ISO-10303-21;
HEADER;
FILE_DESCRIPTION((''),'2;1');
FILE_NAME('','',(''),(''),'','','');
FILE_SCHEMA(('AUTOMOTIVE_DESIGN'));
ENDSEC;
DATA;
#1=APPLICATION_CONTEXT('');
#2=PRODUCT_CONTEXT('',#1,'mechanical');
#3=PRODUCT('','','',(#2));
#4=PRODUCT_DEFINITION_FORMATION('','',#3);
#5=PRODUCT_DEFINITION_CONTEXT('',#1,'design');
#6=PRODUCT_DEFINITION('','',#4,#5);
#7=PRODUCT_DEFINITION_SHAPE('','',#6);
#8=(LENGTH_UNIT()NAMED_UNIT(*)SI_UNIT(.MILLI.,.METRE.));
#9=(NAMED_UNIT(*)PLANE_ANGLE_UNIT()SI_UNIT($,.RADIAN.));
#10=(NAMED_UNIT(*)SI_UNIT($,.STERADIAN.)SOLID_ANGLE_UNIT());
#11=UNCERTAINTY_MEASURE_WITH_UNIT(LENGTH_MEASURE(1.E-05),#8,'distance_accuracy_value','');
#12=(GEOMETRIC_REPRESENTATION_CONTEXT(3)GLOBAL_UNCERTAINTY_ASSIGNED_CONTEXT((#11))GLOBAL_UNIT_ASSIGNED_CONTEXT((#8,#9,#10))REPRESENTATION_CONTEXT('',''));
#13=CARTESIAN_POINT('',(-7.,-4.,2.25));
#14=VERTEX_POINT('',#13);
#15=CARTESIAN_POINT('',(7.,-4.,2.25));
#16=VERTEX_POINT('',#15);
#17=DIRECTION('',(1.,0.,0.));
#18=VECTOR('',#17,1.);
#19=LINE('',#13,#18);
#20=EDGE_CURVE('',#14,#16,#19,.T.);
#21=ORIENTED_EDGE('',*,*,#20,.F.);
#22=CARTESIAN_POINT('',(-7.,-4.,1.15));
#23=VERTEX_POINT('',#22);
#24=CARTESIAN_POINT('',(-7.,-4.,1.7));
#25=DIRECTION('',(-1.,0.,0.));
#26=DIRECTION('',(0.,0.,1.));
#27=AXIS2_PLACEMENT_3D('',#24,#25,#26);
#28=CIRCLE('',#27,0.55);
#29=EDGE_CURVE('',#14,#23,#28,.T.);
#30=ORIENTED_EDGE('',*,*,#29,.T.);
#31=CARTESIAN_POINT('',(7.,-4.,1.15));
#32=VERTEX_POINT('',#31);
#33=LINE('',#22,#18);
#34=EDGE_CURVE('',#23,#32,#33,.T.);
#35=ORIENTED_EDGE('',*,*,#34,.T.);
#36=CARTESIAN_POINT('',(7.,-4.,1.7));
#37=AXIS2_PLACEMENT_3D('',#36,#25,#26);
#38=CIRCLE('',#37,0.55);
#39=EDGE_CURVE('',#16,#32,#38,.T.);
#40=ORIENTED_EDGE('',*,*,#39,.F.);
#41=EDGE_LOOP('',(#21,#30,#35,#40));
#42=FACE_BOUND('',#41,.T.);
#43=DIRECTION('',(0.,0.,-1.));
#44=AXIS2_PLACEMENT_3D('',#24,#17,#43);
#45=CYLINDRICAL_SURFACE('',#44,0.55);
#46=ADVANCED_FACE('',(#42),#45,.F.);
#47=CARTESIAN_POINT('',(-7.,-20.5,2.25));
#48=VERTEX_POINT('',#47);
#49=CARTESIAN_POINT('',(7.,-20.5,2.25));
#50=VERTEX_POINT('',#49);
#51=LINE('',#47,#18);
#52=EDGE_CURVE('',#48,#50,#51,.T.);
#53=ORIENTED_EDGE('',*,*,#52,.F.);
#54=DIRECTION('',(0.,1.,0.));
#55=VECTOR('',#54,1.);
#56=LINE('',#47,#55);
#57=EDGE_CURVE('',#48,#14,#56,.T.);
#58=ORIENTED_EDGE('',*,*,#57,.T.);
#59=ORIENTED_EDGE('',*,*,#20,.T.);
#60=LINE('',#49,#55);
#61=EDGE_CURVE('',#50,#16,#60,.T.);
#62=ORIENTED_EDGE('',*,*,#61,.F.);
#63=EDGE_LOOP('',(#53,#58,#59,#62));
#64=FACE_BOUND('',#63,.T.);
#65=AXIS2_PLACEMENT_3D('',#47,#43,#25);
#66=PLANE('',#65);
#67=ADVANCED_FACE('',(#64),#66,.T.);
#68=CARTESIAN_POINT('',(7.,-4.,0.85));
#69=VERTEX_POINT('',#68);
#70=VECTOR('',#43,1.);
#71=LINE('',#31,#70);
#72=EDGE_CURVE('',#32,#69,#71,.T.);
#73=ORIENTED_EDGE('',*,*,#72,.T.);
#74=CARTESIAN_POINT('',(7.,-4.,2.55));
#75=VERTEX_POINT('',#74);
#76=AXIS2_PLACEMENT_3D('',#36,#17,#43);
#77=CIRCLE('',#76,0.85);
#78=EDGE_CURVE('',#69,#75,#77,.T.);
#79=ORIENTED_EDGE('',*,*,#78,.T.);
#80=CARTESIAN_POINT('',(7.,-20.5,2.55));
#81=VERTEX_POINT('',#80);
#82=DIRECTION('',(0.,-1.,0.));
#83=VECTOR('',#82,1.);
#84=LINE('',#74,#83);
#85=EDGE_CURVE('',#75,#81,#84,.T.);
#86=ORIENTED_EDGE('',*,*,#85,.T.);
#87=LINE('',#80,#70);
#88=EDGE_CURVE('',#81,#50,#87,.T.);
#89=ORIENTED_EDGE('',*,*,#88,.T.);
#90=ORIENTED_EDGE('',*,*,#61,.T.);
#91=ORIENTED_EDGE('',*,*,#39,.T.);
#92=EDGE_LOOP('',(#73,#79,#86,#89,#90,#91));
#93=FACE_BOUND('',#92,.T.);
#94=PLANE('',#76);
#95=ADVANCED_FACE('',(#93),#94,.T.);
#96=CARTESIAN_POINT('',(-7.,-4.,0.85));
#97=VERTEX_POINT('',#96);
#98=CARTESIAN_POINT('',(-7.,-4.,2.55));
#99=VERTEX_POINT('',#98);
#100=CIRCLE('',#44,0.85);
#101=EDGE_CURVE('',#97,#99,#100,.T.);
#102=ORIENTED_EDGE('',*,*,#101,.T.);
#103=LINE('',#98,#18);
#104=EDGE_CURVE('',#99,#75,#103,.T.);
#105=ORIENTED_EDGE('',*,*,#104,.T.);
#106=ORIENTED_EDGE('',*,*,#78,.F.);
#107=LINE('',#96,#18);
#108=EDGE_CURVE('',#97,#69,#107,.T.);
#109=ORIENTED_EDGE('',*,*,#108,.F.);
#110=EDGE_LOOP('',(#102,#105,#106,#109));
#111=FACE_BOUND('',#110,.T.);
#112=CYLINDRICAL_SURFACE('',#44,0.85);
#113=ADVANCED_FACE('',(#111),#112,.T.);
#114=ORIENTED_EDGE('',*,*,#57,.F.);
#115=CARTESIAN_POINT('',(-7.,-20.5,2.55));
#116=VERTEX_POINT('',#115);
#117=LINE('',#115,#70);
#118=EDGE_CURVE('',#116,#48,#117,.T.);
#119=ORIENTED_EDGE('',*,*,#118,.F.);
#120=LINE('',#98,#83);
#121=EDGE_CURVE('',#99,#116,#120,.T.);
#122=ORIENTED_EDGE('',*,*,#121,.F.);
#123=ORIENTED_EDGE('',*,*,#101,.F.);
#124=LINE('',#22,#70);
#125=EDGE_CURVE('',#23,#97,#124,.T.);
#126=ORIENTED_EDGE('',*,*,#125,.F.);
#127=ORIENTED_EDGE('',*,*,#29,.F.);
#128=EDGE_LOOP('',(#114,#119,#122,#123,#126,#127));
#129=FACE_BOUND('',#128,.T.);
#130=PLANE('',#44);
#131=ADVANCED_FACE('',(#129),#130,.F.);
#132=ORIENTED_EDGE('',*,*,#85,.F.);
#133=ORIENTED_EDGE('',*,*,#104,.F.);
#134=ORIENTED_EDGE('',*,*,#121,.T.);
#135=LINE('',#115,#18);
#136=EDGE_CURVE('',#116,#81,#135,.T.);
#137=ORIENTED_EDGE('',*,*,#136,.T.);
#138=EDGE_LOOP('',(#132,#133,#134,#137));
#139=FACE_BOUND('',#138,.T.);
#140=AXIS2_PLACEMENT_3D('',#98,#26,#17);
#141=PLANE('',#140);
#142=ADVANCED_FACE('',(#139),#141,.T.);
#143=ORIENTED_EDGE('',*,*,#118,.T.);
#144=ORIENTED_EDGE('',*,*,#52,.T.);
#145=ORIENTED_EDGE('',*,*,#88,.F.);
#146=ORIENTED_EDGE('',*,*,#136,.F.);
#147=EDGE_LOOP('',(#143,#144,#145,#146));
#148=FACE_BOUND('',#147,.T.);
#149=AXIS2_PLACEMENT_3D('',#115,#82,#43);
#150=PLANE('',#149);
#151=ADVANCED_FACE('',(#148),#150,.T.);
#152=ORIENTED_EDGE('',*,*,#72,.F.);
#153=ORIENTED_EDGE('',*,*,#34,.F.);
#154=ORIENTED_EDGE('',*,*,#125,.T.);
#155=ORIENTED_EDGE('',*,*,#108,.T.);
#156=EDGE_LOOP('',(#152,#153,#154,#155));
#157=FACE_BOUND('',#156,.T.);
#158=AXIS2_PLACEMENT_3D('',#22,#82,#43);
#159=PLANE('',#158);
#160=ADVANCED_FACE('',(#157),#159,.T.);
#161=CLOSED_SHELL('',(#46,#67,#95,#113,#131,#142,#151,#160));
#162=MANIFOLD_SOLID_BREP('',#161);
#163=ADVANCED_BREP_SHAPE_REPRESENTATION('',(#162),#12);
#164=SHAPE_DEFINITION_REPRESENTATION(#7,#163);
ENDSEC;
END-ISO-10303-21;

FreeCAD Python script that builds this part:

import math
import FreeCAD as App
import Part
import Sketcher

doc = App.newDocument("Part")
body = doc.addObject("PartDesign::Body", "Body")

# Sketch on YZ plane
sketch1 = doc.addObject("Sketcher::SketchObject", "Sketch")
body.addObject(sketch1)
sketch1.AttachmentSupport = (doc.YZ_Plane, [""])
sketch1.MapMode = "FlatFace"
sketch1.addGeometry([
    Part.LineSegment(App.Vector(-4, 2.55, 0), App.Vector(-20.5, 2.55, 0)),  # 0
    Part.LineSegment(App.Vector(-20.5, 2.55, 0), App.Vector(-20.5, 2.25, 0)),  # 1
    Part.LineSegment(App.Vector(-20.5, 2.25, 0), App.Vector(-4, 2.25, 0)),  # 2
    Part.ArcOfCircle(Part.Circle(App.Vector(-4, 1.7, 0), App.Vector(0, 0, 1), 0.55), math.radians(-90), math.radians(90)),  # 3
    Part.LineSegment(App.Vector(-4, 1.15, 0), App.Vector(-4, 0.85, 0)),  # 4
    Part.ArcOfCircle(Part.Circle(App.Vector(-4, 1.7, 0), App.Vector(0, 0, 1), 0.85), math.radians(-90), math.radians(90)),  # 5
], False)
sketch1.addConstraint([
    Sketcher.Constraint("Coincident", 0, 2, 1, 1),
    Sketcher.Constraint("Coincident", 1, 2, 2, 1),
    Sketcher.Constraint("Tangent", 2, 2, 3, 2),
    Sketcher.Constraint("Coincident", 3, 1, 4, 1),
    Sketcher.Constraint("Coincident", 4, 2, 5, 1),
    Sketcher.Constraint("Tangent", 5, 2, 0, 1),
    Sketcher.Constraint("Horizontal", 0),
    Sketcher.Constraint("Vertical", 1),
    Sketcher.Constraint("Horizontal", 2),
    Sketcher.Constraint("Vertical", 4),
    Sketcher.Constraint("Coincident", 5, 3, 3, 3),
    Sketcher.Constraint("Vertical", 2, 2, 3, 1),
    Sketcher.Constraint("Radius", 3, 0.55),
    Sketcher.Constraint("Radius", 5, 0.85),
    Sketcher.Constraint("DistanceX", 0, 2, 0, 1, 16.5),
    Sketcher.Constraint("DistanceX", 3, 3, -1, 1, 4.0),
    Sketcher.Constraint("DistanceY", -1, 1, 3, 3, 1.7),
])
pad1 = doc.addObject("PartDesign::Pad", "Pad")
body.addObject(pad1)
pad1.Profile = sketch1
pad1.Type = "TwoLengths"
pad1.Length = 7
pad1.Length2 = 7

doc.recompute()
